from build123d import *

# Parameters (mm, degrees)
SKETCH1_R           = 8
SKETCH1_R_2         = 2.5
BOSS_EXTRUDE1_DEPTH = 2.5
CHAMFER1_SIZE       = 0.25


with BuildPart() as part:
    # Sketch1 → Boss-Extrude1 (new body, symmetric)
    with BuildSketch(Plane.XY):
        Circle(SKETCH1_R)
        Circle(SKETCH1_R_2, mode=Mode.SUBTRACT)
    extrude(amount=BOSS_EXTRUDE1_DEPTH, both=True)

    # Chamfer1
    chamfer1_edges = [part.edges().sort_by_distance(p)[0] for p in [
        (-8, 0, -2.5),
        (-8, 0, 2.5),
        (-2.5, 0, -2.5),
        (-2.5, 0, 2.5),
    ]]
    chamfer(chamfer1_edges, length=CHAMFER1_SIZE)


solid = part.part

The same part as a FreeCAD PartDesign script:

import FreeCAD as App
import Part
import Sketcher

V = App.Vector


def edges_at(feature, points):
    """Names of the edges that pass closest to the given points."""
    edges = feature.Shape.Edges
    near = lambda p: min(range(len(edges)), key=lambda i: edges[i].distToShape(Part.Vertex(*p))[0])
    return sorted({f"Edge{near(p) + 1}" for p in points})

doc = App.newDocument("Part")
body = doc.addObject("PartDesign::Body", "Body")

sketch1 = body.newObject("Sketcher::SketchObject", "Sketch")
sketch1.AttachmentSupport = (doc.getObject("XY_Plane"), [""])
sketch1.MapMode = "FlatFace"
sketch1.addGeometry(Part.Circle(V(0, 0, 0), V(0, 0, 1), 8), False)
sketch1.addGeometry(Part.Circle(V(0, 0, 0), V(0, 0, 1), 2.5), False)
sketch1.addConstraint(Sketcher.Constraint("Coincident", 0, 3, -1, 1))
sketch1.addConstraint(Sketcher.Constraint("Coincident", 1, 3, -1, 1))
sketch1.addConstraint(Sketcher.Constraint("Diameter", 0, 16.0))
sketch1.addConstraint(Sketcher.Constraint("Diameter", 1, 5.0))
pad1 = body.newObject("PartDesign::Pad", "Pad")
pad1.Profile = sketch1
pad1.Length = 5
pad1.Midplane = True
doc.recompute()

chamfer = body.newObject("PartDesign::Chamfer", "Chamfer")
chamfer.Base = (pad1, edges_at(pad1, [
    (-8, 0, -2.5),
    (-8, 0, 2.5),
    (-2.5, 0, -2.5),
    (-2.5, 0, 2.5),
]))
chamfer.Size = 0.25

doc.recompute()
